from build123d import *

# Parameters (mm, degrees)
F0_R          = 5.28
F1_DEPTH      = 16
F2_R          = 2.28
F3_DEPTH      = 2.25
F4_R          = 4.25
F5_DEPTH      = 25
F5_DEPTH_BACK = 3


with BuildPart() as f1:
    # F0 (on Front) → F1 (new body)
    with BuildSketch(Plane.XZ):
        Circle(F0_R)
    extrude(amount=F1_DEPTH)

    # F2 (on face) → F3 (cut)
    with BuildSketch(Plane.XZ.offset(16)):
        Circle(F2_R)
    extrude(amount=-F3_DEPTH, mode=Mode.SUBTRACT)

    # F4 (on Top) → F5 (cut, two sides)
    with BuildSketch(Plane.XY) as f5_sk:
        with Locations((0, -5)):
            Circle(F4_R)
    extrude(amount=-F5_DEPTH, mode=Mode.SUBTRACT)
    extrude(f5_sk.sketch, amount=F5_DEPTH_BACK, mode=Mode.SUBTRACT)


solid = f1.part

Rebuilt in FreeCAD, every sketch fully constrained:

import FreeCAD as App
import Part
import Sketcher

V = App.Vector

doc = App.newDocument("Part")
params = doc.addObject("Spreadsheet::Sheet", "Params")
for row, (alias, value) in enumerate([
    ("sketch1_diameter", "10.56 mm"),
    ("pad1_length", "16 mm"),
    ("sketch2_diameter", "4.56 mm"),
    ("pocket1_length", "2.25 mm"),
    ("sketch3_diameter", "8.5 mm"),
    ("pocket2_length", "25 mm"),
    ("pocket2_length2", "3 mm"),
], start=1):
    params.set(f"A{row}", alias)
    params.set(f"B{row}", "=" + value)
    params.setAlias(f"B{row}", alias)

body = doc.addObject("PartDesign::Body", "Body")

sketch1 = body.newObject("Sketcher::SketchObject", "Sketch")
sketch1.AttachmentSupport = (doc.getObject("XZ_Plane"), [""])
sketch1.MapMode = "FlatFace"
sketch1.addGeometry(Part.Circle(V(0, 0, 0), V(0, 0, 1), 5), False)
sketch1.addConstraint([
    Sketcher.Constraint("Coincident", 0, 3, -1, 1),
    Sketcher.Constraint("Diameter", 0, 10.56),
])
sketch1.setExpression("Constraints[1]", "Params.sketch1_diameter")
pad1 = body.newObject("PartDesign::Pad", "Pad")
pad1.Profile = sketch1
pad1.setExpression("Length", "Params.pad1_length")

sketch2 = body.newObject("Sketcher::SketchObject", "Sketch001")
sketch2.AttachmentSupport = (doc.getObject("XZ_Plane"), [""])
sketch2.MapMode = "FlatFace"
sketch2.AttachmentOffset = App.Placement(V(0, 0, 16), App.Rotation())
sketch2.addGeometry(Part.Circle(V(0, 0, 0), V(0, 0, 1), 2.3), False)
sketch2.addConstraint([
    Sketcher.Constraint("Coincident", 0, 3, -1, 1),
    Sketcher.Constraint("Diameter", 0, 4.56),
])
sketch2.setExpression("Constraints[1]", "Params.sketch2_diameter")
pocket1 = body.newObject("PartDesign::Pocket", "Pocket")
pocket1.Profile = sketch2
pocket1.setExpression("Length", "Params.pocket1_length")

sketch3 = body.newObject("Sketcher::SketchObject", "Sketch002")
sketch3.AttachmentSupport = (doc.getObject("XY_Plane"), [""])
sketch3.MapMode = "FlatFace"
sketch3.addGeometry(Part.Circle(V(0, -5, 0), V(0, 0, 1), 4.2), False)
sketch3.addConstraint([
    Sketcher.Constraint("PointOnObject", 0, 3, -2),
    Sketcher.Constraint("Diameter", 0, 8.5),
    Sketcher.Constraint("DistanceY", 0, 3, -1, 1, 5.0),
])
sketch3.setExpression("Constraints[1]", "Params.sketch3_diameter")
pocket2 = body.newObject("PartDesign::Pocket", "Pocket001")
pocket2.Profile = sketch3
pocket2.Type = "TwoLengths"
pocket2.setExpression("Length", "Params.pocket2_length")
pocket2.setExpression("Length2", "Params.pocket2_length2")

doc.recompute()
